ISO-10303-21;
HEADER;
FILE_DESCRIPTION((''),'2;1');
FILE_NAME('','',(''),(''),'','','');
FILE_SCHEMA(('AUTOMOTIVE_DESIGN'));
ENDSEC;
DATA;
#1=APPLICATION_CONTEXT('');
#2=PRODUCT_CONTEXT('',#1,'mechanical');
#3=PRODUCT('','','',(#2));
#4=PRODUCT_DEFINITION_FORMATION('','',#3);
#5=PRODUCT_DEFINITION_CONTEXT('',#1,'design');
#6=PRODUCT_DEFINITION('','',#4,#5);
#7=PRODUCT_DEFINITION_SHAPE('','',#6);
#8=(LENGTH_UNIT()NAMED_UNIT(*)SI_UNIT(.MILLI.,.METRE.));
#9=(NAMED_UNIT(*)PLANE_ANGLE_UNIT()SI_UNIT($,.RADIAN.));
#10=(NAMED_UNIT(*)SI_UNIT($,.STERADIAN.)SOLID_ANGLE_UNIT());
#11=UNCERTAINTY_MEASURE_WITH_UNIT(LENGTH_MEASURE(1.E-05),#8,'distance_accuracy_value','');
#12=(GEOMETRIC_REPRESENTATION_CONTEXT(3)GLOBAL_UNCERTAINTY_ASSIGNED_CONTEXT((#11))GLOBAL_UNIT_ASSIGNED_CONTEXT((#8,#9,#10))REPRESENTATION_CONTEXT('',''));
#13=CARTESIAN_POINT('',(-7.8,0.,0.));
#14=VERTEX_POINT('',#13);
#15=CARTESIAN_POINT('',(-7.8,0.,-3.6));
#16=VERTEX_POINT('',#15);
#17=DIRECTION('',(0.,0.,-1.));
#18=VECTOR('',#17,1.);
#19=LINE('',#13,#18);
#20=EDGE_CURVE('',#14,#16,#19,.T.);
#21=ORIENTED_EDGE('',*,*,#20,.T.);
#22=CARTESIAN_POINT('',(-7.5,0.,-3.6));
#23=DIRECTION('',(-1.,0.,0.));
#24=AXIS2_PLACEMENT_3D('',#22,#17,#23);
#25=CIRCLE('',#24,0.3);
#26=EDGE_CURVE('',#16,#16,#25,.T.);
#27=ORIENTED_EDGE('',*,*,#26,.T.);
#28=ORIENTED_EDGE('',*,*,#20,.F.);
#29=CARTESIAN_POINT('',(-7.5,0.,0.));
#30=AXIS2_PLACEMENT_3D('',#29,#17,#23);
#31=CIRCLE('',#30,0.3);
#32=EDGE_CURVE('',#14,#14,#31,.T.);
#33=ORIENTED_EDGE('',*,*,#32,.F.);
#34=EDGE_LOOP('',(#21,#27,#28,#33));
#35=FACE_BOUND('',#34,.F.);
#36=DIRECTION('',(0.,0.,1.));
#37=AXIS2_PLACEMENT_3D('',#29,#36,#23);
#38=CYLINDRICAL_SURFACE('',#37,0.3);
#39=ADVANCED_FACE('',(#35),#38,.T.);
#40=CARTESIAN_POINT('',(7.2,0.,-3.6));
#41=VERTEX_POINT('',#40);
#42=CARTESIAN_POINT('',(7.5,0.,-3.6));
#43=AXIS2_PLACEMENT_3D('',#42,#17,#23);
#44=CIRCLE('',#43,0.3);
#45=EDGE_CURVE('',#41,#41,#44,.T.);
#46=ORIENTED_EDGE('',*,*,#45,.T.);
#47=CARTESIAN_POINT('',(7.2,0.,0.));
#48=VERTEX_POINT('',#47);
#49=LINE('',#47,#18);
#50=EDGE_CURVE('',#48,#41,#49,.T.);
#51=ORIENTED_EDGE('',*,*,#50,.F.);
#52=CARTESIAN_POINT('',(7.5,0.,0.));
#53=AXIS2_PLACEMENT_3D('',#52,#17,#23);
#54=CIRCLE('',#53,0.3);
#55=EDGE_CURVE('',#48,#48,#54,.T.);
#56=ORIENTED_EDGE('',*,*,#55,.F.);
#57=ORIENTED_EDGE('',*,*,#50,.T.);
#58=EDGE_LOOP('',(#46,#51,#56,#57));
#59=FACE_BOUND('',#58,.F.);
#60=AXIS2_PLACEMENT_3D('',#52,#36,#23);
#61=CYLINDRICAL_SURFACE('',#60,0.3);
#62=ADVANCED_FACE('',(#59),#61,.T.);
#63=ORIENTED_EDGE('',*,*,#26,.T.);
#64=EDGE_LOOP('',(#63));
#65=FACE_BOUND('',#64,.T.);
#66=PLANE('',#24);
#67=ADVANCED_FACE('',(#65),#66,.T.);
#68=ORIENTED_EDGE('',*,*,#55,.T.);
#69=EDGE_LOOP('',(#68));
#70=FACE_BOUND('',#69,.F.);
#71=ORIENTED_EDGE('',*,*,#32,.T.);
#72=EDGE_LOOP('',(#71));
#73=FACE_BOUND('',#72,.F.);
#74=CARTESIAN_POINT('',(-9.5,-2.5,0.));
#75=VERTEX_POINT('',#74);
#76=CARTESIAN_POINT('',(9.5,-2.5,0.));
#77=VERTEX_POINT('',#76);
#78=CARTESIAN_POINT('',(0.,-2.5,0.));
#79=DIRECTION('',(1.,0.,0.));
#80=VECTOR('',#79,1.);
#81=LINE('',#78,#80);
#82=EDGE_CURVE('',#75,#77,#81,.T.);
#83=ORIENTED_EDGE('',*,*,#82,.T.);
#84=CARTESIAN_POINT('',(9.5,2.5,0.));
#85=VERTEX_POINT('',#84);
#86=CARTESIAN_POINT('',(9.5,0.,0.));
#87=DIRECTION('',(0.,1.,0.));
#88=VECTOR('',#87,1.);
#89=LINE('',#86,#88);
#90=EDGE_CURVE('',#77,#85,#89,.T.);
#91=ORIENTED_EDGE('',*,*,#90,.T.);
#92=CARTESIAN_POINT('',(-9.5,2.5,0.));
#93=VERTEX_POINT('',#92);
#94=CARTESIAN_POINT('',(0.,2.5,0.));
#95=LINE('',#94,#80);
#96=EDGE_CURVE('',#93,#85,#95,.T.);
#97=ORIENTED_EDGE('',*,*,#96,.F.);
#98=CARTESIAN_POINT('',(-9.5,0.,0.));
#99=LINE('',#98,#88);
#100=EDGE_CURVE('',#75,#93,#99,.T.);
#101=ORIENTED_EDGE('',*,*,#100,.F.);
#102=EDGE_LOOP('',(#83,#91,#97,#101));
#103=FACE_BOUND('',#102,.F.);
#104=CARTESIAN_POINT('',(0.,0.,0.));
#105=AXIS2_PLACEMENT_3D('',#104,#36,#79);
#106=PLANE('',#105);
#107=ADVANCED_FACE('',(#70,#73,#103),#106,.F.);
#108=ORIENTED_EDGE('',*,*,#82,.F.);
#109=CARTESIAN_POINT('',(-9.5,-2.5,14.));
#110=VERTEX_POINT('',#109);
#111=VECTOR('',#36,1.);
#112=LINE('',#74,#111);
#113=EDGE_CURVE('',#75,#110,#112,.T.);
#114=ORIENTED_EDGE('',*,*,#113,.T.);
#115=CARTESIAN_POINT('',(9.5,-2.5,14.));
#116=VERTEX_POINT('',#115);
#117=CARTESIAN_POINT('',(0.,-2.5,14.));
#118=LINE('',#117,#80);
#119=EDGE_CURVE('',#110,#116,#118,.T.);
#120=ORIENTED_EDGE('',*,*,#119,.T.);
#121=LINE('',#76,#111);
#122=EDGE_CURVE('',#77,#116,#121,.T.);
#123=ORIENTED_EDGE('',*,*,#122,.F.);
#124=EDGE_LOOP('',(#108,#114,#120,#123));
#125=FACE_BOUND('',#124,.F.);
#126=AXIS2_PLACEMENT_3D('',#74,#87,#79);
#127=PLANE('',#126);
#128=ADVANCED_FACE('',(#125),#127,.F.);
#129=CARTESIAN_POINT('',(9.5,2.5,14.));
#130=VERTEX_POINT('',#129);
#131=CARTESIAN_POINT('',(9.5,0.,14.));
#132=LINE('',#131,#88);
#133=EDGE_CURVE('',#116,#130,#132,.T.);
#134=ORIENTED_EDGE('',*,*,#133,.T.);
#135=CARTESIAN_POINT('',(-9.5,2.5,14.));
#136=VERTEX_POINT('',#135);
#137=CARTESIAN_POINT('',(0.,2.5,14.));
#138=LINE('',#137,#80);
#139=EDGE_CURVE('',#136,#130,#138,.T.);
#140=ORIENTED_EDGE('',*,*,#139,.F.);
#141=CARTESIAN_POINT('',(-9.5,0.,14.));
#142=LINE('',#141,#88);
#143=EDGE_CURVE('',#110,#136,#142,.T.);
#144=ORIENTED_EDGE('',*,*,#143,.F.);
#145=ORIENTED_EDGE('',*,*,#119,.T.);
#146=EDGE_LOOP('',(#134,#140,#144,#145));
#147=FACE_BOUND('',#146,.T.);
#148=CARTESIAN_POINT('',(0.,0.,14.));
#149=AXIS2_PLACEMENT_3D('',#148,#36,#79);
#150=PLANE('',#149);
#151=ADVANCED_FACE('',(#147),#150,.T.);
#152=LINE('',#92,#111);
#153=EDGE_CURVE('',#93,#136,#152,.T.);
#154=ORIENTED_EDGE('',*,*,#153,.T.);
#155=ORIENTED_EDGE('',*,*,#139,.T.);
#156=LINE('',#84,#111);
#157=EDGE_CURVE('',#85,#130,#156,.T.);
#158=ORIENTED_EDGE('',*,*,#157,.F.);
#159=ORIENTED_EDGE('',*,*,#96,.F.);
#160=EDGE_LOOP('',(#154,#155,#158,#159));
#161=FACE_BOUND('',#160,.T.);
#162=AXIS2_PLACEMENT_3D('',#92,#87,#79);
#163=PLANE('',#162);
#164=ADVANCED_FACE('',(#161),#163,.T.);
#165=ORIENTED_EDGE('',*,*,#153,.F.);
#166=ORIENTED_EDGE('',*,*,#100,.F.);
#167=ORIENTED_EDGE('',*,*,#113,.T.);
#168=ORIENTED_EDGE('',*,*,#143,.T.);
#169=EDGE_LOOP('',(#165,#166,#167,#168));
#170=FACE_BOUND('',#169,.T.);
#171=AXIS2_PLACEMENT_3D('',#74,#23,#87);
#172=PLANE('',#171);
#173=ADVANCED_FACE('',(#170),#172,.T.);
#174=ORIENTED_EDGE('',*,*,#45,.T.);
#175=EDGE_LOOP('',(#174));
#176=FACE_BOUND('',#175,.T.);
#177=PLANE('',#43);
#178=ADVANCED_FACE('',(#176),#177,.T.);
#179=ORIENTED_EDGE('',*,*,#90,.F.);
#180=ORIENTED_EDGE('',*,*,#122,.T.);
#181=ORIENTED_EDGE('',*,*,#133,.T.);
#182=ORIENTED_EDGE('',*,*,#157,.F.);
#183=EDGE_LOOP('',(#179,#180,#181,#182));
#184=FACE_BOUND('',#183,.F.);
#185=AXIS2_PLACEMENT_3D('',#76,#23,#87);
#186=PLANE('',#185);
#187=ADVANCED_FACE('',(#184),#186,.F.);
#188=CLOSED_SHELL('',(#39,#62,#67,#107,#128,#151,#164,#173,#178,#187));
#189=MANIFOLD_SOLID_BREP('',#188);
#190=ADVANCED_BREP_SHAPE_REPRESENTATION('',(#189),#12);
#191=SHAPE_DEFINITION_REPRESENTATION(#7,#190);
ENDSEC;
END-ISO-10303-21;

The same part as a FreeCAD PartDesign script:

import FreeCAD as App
import Part
import Sketcher

doc = App.newDocument("Part")
body = doc.addObject("PartDesign::Body", "Body")

sketch1 = body.newObject("Sketcher::SketchObject", "Sketch")
sketch1.AttachmentSupport = (doc.getObject("XY_Plane"), [""])
sketch1.MapMode = "FlatFace"
sketch1.addGeometry([
    Part.LineSegment(App.Vector(-9.5, 2.5, 0), App.Vector(-9.5, -2.5, 0)),
    Part.LineSegment(App.Vector(-9.5, -2.5, 0), App.Vector(9.5, -2.5, 0)),
    Part.LineSegment(App.Vector(9.5, -2.5, 0), App.Vector(9.5, 2.5, 0)),
    Part.LineSegment(App.Vector(9.5, 2.5, 0), App.Vector(-9.5, 2.5, 0)),
], False)
sketch1.addConstraint([
    Sketcher.Constraint("Coincident", 0, 2, 1, 1),
    Sketcher.Constraint("Coincident", 1, 2, 2, 1),
    Sketcher.Constraint("Coincident", 2, 2, 3, 1),
    Sketcher.Constraint("Coincident", 3, 2, 0, 1),
    Sketcher.Constraint("Vertical", 0),
    Sketcher.Constraint("Horizontal", 1),
    Sketcher.Constraint("Vertical", 2),
    Sketcher.Constraint("Horizontal", 3),
    Sketcher.Constraint("Symmetric", 0, 2, 2, 2, -1, 1),
    Sketcher.Constraint("DistanceX", 1, 1, 1, 2, 19.0),
    Sketcher.Constraint("DistanceY", 0, 2, 0, 1, 5.0),
])
pad1 = body.newObject("PartDesign::Pad", "Pad")
pad1.Profile = sketch1
pad1.Length = 14

sketch2 = body.newObject("Sketcher::SketchObject", "Sketch001")
sketch2.AttachmentSupport = (doc.getObject("XY_Plane"), [""])
sketch2.MapMode = "FlatFace"
sketch2.addGeometry([
    Part.Circle(App.Vector(7.5, 0, 0), App.Vector(0, 0, 1), 0.3),
    Part.Circle(App.Vector(-7.5, 0, 0), App.Vector(0, 0, 1), 0.3),
], False)
sketch2.addConstraint([
    Sketcher.Constraint("Equal", 0, 1),
    Sketcher.Constraint("Symmetric", 0, 3, 1, 3, -1, 1),
    Sketcher.Constraint("PointOnObject", 0, 3, -1),
    Sketcher.Constraint("Diameter", 0, 0.6),
    Sketcher.Constraint("DistanceX", 1, 3, 0, 3, 15.0),
])
pad2 = body.newObject("PartDesign::Pad", "Pad001")
pad2.Profile = sketch2
pad2.Length = 3.6
pad2.Reversed = True

doc.recompute()
